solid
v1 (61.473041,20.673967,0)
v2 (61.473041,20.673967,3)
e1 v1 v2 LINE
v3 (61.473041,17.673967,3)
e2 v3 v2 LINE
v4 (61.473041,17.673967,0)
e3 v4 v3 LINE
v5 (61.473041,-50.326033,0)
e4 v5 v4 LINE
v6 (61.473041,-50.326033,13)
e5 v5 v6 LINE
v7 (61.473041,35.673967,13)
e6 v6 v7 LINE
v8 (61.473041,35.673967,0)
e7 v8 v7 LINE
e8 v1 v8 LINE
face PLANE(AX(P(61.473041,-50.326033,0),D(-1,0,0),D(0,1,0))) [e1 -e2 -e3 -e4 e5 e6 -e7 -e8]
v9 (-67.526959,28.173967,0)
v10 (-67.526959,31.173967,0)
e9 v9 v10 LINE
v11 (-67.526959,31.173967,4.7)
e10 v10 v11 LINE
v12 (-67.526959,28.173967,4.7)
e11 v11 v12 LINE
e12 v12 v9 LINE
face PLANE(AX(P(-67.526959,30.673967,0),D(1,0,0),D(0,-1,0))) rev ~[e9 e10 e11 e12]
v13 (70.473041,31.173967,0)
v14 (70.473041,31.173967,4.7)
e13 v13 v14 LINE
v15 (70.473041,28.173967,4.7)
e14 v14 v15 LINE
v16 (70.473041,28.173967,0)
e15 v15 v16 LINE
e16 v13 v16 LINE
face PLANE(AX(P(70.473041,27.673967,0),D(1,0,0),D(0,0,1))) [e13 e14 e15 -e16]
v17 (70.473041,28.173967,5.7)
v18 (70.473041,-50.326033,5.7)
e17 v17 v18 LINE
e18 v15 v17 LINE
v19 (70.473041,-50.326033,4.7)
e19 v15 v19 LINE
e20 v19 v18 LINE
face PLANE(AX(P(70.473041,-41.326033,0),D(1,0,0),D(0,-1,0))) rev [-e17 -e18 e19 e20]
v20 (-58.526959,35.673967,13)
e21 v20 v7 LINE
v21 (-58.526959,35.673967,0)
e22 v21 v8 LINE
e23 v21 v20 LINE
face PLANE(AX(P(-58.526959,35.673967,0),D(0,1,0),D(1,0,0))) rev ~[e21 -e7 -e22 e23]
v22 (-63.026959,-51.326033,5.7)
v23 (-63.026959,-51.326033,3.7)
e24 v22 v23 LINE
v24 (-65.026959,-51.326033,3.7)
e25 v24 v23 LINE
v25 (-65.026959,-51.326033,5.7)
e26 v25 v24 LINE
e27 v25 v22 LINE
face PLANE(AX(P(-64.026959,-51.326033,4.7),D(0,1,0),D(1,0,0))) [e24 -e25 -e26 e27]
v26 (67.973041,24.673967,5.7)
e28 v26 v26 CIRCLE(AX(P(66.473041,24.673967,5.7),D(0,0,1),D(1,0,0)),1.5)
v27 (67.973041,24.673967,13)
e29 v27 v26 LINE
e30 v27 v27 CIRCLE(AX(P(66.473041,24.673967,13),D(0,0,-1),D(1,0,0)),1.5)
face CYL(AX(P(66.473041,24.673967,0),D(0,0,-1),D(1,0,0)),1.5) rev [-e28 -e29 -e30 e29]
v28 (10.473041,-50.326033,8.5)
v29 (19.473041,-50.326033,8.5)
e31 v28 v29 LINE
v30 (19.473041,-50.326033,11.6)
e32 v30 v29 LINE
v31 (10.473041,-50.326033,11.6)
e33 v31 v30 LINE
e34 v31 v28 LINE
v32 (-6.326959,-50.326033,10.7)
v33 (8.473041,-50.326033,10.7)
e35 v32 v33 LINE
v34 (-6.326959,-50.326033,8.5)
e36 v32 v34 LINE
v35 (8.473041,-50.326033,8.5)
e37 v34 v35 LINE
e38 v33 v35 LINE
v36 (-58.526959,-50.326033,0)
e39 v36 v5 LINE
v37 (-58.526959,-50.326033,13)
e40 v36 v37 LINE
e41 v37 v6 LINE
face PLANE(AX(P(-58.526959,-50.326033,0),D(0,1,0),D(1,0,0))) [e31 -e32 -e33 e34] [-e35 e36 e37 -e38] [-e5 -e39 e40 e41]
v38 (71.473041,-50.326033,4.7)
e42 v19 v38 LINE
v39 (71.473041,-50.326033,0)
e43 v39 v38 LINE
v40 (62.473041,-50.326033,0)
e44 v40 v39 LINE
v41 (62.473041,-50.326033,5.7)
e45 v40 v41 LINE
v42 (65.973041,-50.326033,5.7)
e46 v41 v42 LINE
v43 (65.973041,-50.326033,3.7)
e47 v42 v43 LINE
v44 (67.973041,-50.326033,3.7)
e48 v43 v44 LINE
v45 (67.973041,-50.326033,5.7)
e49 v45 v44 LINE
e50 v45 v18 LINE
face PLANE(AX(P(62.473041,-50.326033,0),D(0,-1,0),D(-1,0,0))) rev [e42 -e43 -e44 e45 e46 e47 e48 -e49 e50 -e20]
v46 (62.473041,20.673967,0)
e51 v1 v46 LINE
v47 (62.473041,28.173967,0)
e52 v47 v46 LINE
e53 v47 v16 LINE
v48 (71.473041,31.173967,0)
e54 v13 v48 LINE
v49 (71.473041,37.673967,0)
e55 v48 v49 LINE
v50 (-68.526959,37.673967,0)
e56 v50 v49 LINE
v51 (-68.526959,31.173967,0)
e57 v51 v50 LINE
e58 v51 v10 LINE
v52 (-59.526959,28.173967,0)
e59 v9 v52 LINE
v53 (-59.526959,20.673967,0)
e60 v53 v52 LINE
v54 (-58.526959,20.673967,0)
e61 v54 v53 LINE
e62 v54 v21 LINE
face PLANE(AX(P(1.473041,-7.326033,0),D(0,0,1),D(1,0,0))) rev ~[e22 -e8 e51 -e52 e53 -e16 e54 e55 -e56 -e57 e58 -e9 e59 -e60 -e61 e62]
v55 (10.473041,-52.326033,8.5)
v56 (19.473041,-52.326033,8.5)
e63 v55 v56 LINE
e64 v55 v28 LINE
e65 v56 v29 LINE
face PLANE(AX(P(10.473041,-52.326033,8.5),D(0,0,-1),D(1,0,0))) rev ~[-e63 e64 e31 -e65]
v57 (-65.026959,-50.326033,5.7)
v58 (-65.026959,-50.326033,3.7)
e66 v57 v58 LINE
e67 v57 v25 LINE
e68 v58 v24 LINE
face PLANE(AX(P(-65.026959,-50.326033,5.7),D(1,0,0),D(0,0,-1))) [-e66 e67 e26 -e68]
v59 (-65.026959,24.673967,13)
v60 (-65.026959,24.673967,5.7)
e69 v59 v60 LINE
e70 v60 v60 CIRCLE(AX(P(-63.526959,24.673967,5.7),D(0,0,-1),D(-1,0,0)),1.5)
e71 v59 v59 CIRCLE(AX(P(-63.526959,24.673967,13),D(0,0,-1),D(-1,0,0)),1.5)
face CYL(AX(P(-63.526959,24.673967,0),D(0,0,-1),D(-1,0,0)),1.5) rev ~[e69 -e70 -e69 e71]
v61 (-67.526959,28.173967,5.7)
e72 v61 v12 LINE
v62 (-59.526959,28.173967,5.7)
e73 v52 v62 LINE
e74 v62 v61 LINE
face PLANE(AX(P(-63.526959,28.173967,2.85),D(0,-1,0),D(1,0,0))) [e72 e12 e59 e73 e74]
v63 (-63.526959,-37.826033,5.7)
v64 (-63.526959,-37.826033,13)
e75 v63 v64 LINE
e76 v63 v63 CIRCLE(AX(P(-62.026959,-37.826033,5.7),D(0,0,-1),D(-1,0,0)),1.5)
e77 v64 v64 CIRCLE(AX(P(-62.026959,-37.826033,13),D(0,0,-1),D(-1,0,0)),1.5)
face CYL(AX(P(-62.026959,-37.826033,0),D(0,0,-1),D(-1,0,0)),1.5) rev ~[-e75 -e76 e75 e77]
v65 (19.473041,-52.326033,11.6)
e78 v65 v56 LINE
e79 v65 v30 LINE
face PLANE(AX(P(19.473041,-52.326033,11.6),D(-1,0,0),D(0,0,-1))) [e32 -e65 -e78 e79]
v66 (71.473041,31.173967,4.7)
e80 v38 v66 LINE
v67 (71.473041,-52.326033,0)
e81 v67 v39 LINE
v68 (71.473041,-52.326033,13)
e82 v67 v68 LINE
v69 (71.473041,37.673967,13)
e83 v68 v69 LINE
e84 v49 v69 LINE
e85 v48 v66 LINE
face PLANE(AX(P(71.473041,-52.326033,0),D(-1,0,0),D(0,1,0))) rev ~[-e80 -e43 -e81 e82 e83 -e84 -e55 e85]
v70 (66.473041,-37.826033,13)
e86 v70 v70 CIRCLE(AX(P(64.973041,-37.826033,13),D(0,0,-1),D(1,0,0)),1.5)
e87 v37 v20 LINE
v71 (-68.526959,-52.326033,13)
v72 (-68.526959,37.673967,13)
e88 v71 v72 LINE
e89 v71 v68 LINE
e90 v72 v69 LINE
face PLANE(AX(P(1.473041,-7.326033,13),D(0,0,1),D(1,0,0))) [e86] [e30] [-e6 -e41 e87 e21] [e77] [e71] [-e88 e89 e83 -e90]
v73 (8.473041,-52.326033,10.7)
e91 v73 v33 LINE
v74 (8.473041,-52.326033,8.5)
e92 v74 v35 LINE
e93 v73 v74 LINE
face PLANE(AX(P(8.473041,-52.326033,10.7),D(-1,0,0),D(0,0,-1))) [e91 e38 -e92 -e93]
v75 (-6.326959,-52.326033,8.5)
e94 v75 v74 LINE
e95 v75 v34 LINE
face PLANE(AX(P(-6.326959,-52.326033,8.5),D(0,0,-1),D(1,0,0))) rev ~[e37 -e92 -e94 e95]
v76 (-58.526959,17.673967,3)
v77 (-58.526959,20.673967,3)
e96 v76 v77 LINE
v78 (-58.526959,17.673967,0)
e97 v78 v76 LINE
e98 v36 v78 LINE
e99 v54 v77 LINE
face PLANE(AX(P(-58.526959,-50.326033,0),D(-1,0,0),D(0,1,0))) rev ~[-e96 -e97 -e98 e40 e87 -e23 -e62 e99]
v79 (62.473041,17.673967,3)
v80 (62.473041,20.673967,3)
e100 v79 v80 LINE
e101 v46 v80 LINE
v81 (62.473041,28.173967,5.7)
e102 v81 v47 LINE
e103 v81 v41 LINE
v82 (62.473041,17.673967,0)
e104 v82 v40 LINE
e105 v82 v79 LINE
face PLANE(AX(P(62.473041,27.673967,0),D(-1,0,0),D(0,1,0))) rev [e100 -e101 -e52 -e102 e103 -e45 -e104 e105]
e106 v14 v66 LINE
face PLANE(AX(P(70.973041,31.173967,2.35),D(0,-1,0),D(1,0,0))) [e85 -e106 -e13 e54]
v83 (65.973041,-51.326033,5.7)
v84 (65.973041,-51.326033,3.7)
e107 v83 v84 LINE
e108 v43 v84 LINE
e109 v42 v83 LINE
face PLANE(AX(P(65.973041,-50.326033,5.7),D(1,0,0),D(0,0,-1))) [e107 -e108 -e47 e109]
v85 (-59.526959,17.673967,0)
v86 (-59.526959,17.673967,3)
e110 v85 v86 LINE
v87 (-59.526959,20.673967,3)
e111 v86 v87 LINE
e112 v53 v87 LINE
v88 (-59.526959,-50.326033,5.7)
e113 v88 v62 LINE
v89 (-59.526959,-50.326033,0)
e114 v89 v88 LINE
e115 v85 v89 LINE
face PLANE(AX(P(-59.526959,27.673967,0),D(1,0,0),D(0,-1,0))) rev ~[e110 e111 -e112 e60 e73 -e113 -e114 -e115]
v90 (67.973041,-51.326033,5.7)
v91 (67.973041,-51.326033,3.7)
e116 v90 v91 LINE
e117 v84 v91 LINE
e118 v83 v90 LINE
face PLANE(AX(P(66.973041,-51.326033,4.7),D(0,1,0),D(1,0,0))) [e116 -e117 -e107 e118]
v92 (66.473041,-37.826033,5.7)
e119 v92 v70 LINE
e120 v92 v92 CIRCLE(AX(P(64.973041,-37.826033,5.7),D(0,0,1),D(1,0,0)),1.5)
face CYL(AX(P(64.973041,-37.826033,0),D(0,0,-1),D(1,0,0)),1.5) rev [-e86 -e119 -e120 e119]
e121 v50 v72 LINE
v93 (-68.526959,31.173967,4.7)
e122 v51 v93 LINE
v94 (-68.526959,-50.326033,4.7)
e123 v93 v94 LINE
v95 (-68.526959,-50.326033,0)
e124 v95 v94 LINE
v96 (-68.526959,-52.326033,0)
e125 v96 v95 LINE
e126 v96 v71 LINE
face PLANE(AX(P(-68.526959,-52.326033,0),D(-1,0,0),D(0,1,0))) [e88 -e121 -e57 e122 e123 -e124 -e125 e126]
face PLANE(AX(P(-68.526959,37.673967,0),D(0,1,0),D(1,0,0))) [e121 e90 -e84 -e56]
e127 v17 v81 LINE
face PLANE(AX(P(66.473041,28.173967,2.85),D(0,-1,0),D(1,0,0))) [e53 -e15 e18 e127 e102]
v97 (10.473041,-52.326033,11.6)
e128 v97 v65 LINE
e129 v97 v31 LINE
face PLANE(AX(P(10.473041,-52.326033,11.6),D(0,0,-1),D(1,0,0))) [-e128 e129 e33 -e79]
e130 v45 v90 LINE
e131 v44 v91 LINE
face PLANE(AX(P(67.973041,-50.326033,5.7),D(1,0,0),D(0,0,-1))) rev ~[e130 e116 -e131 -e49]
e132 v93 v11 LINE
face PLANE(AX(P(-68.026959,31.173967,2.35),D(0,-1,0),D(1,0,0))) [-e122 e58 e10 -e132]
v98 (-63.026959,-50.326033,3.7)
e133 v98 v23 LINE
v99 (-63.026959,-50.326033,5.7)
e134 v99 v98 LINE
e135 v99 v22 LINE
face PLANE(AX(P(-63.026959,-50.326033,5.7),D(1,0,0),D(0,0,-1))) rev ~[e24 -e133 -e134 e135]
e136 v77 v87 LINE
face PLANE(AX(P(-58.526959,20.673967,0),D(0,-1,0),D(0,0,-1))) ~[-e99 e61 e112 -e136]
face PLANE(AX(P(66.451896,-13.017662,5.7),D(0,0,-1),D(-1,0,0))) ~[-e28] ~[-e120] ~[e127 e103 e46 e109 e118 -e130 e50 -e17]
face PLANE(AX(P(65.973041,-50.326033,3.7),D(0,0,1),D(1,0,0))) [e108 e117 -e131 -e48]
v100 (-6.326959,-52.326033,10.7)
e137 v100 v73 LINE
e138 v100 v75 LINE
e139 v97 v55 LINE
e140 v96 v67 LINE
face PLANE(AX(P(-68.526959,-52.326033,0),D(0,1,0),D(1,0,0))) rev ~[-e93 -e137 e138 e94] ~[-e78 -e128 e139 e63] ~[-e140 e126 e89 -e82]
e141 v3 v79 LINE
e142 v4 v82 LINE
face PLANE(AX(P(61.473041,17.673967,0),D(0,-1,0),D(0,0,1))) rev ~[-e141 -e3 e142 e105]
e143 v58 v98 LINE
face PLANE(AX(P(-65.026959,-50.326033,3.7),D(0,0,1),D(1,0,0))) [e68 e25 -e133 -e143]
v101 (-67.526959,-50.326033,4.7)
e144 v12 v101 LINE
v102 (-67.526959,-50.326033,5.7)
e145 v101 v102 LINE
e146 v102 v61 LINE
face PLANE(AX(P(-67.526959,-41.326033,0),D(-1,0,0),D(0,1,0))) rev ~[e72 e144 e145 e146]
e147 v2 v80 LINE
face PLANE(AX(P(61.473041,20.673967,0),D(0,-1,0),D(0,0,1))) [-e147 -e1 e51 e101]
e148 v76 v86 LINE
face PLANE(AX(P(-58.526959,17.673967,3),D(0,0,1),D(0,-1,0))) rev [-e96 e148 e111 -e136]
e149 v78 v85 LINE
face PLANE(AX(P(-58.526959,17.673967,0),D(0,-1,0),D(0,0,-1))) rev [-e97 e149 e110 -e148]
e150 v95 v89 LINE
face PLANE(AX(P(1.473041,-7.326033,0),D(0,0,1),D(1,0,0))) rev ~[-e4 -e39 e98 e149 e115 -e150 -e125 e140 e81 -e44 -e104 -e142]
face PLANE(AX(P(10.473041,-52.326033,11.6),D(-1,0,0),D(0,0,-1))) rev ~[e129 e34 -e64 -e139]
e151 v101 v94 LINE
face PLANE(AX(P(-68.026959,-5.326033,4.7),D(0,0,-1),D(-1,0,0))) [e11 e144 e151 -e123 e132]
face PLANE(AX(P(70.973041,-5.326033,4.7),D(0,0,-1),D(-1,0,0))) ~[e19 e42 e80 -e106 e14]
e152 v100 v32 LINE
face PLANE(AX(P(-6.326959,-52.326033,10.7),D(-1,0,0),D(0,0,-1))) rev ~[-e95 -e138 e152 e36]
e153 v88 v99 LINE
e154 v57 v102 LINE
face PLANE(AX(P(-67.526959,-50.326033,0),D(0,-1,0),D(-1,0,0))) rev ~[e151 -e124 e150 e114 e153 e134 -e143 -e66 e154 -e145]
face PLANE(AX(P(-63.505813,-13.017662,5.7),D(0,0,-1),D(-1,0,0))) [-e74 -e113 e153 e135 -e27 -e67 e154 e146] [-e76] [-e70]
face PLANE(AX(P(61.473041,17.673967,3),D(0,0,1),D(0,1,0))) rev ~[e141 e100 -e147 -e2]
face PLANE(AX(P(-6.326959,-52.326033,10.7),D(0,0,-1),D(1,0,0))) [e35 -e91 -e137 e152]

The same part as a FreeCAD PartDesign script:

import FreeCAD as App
import Part
import Sketcher


def add_polygon(sketch, points):
    """Adds a closed chain of lines whose ends are joined by coincident constraints."""
    first, n = sketch.GeometryCount, len(points)
    for a, b in zip(points, points[1:] + points[:1]):
        sketch.addGeometry(Part.LineSegment(App.Vector(*a, 0), App.Vector(*b, 0)), False)
    for i in range(n):
        sketch.addConstraint(Sketcher.Constraint("Coincident", first + i, 2, first + (i + 1) % n, 1))

doc = App.newDocument("Part")
body = doc.addObject("PartDesign::Body", "Body")

# Sketch on XY plane
sketch1 = doc.addObject("Sketcher::SketchObject", "Sketch")
body.addObject(sketch1)
sketch1.AttachmentSupport = (doc.XY_Plane, [""])
sketch1.MapMode = "FlatFace"
add_polygon(sketch1, [(-68.526959, 37.673967), (-68.526959, -52.326033), (71.473041, -52.326033), (71.473041, 37.673967)])  # lines 0-3
add_polygon(sketch1, [(61.473041, -50.326033), (-58.526959, -50.326033), (-58.526959, 35.673967), (61.473041, 35.673967)])  # lines 4-7
sketch1.addConstraint([
    Sketcher.Constraint("Vertical", 0),
    Sketcher.Constraint("Horizontal", 1),
    Sketcher.Constraint("Vertical", 2),
    Sketcher.Constraint("Horizontal", 3),
    Sketcher.Constraint("Horizontal", 4),
    Sketcher.Constraint("Vertical", 5),
    Sketcher.Constraint("Horizontal", 6),
    Sketcher.Constraint("Vertical", 7),
    Sketcher.Constraint("DistanceX", 1, 1, 1, 2, 140.0),
    Sketcher.Constraint("DistanceX", 4, 2, 4, 1, 120.0),
    Sketcher.Constraint("DistanceY", 0, 2, 0, 1, 90.0),
    Sketcher.Constraint("DistanceY", 5, 1, 5, 2, 86.0),
    Sketcher.Constraint("DistanceX", 0, 2, 4, 2, 10.0),
    Sketcher.Constraint("DistanceY", 0, 2, 4, 2, 2.0),
    Sketcher.Constraint("DistanceX", 0, 2, -1, 1, 68.526959),
    Sketcher.Constraint("DistanceY", 0, 2, -1, 1, 52.326033),
])
pad1 = doc.addObject("PartDesign::Pad", "Pad")
body.addObject(pad1)
pad1.Profile = sketch1
pad1.Length = 13

# Sketch on XY plane
sketch2 = doc.addObject("Sketcher::SketchObject", "Sketch001")
body.addObject(sketch2)
sketch2.AttachmentSupport = (doc.XY_Plane, [""])
sketch2.MapMode = "FlatFace"
add_polygon(sketch2, [(-59.526959, 27.673967), (-59.526959, -50.326033), (-67.526959, -50.326033), (-67.526959, 27.673967)])  # lines 0-3
sketch2.addGeometry(Part.Circle(App.Vector(-62.026959, -37.826033, 0), App.Vector(0, 0, 1), 1.5), False)  # 4
sketch2.addGeometry(Part.Circle(App.Vector(-63.526959, 24.673967, 0), App.Vector(0, 0, 1), 1.5), False)  # 5
sketch2.addConstraint([
    Sketcher.Constraint("Vertical", 0),
    Sketcher.Constraint("Horizontal", 1),
    Sketcher.Constraint("Vertical", 2),
    Sketcher.Constraint("Horizontal", 3),
    Sketcher.Constraint("Equal", 4, 5),
    Sketcher.Constraint("Diameter", 4, 3.0),
    Sketcher.Constraint("DistanceX", 1, 2, 1, 1, 8.0),
    Sketcher.Constraint("DistanceY", 0, 2, 0, 1, 78.0),
    Sketcher.Constraint("DistanceX", 5, 3, 0, 2, 4.0),
    Sketcher.Constraint("DistanceY", 0, 2, 5, 3, 75.0),
    Sketcher.Constraint("DistanceX", 5, 3, 4, 3, 1.5),
    Sketcher.Constraint("DistanceY", 4, 3, 5, 3, 62.5),
    Sketcher.Constraint("DistanceX", 4, 3, -1, 1, 62.026959),
    Sketcher.Constraint("DistanceY", 4, 3, -1, 1, 37.826033),
])
pocket1 = doc.addObject("PartDesign::Pocket", "Pocket")
body.addObject(pocket1)
pocket1.Profile = sketch2
pocket1.Length = 5.7
pocket1.Reversed = True

# Sketch on XY plane
sketch3 = doc.addObject("Sketcher::SketchObject", "Sketch002")
body.addObject(sketch3)
sketch3.AttachmentSupport = (doc.XY_Plane, [""])
sketch3.MapMode = "FlatFace"
add_polygon(sketch3, [(-67.526959, 30.673967), (-67.526959, -50.326033), (-68.526959, -50.326033), (-68.526959, 30.673967)])  # lines 0-3
sketch3.addConstraint([
    Sketcher.Constraint("Vertical", 0),
    Sketcher.Constraint("Horizontal", 1),
    Sketcher.Constraint("Vertical", 2),
    Sketcher.Constraint("Horizontal", 3),
    Sketcher.Constraint("DistanceX", 1, 2, 1, 1, 1.0),
    Sketcher.Constraint("DistanceY", 0, 2, 0, 1, 81.0),
    Sketcher.Constraint("DistanceX", 0, 2, -1, 1, 67.526959),
    Sketcher.Constraint("DistanceY", 0, 2, -1, 1, 50.326033),
])
pocket2 = doc.addObject("PartDesign::Pocket", "Pocket001")
body.addObject(pocket2)
pocket2.Profile = sketch3
pocket2.Length = 4.7
pocket2.Reversed = True

# Sketch on XY plane
sketch4 = doc.addObject("Sketcher::SketchObject", "Sketch003")
body.addObject(sketch4)
sketch4.AttachmentSupport = (doc.XY_Plane, [""])
sketch4.MapMode = "FlatFace"
sketch4.addGeometry([
    Part.Circle(App.Vector(-62.026959, -37.826033, 0), App.Vector(0, 0, 1), 1.5),
    Part.Circle(App.Vector(-63.526959, 24.673967, 0), App.Vector(0, 0, 1), 1.5),
], False)
sketch4.addConstraint([
    Sketcher.Constraint("Equal", 0, 1),
    Sketcher.Constraint("Diameter", 0, 3.0),
    Sketcher.Constraint("DistanceX", 1, 3, 0, 3, 1.5),
    Sketcher.Constraint("DistanceY", 0, 3, 1, 3, 62.5),
    Sketcher.Constraint("DistanceX", 0, 3, -1, 1, 62.026959),
    Sketcher.Constraint("DistanceY", 0, 3, -1, 1, 37.826033),
])
pocket3 = doc.addObject("PartDesign::Pocket", "Pocket002")
body.addObject(pocket3)
pocket3.Profile = sketch4
pocket3.Length = 181.057637
pocket3.Midplane = True

# Sketch on YZ plane
sketch5 = doc.addObject("Sketcher::SketchObject", "Sketch004")
body.addObject(sketch5)
sketch5.AttachmentSupport = (doc.YZ_Plane, [""])
sketch5.MapMode = "FlatFace"
sketch5.AttachmentOffset = App.Placement(App.Vector(0, 0, 61.473041), App.Rotation())
add_polygon(sketch5, [(20.673967, 0), (17.673967, 0), (17.673967, 3), (20.673967, 3)])  # lines 0-3
sketch5.addConstraint([
    Sketcher.Constraint("Horizontal", 0),
    Sketcher.Constraint("Vertical", 1),
    Sketcher.Constraint("Horizontal", 2),
    Sketcher.Constraint("Vertical", 3),
    Sketcher.Constraint("PointOnObject", 0, 2, -1),
    Sketcher.Constraint("Equal", 2, 1),
    Sketcher.Constraint("DistanceX", 0, 2, 0, 1, 3.0),
    Sketcher.Constraint("DistanceX", -1, 1, 0, 2, 17.673967),
])
pocket4 = doc.addObject("PartDesign::Pocket", "Pocket003")
body.addObject(pocket4)
pocket4.Profile = sketch5
pocket4.Length = 10
pocket4.Reversed = True
doc.recompute()

datumplane = doc.addObject("PartDesign::Plane", "DatumPlane")
body.addObject(datumplane)
datumplane.AttachmentSupport = (doc.YZ_Plane, [""])
datumplane.MapMode = "FlatFace"
datumplane.AttachmentOffset = App.Placement(App.Vector(0, 0, 1.473041), App.Rotation())
mirrored = doc.addObject("PartDesign::Mirrored", "Mirrored")
body.addObject(mirrored)
mirrored.Originals = [pocket1, pocket2, pocket3, pocket4]
mirrored.MirrorPlane = (datumplane, [""])
body.Tip = mirrored

# Sketch on XZ plane
sketch6 = doc.addObject("Sketcher::SketchObject", "Sketch005")
body.addObject(sketch6)
sketch6.AttachmentSupport = (doc.XZ_Plane, [""])
sketch6.MapMode = "FlatFace"
sketch6.AttachmentOffset = App.Placement(App.Vector(0, 0, -27.673967), App.Rotation())
add_polygon(sketch6, [(-59.526959, 0), (-59.526959, 5.7), (-67.526959, 5.7), (-67.526959, 4.7), (-68.526959, 4.7), (-68.526959, 0)])  # lines 0-5
add_polygon(sketch6, [(70.473041, 5.7), (62.473041, 5.7), (62.473041, 0), (71.473041, 0), (71.473041, 4.7), (70.473041, 4.7)])  # lines 6-11
sketch6.addConstraint([
    Sketcher.Constraint("Vertical", 0),
    Sketcher.Constraint("Horizontal", 1),
    Sketcher.Constraint("Vertical", 2),
    Sketcher.Constraint("Horizontal", 3),
    Sketcher.Constraint("Vertical", 4),
    Sketcher.Constraint("Horizontal", 5),
    Sketcher.Constraint("Horizontal", 6),
    Sketcher.Constraint("Vertical", 7),
    Sketcher.Constraint("Horizontal", 8),
    Sketcher.Constraint("Vertical", 9),
    Sketcher.Constraint("Horizontal", 10),
    Sketcher.Constraint("Vertical", 11),
    Sketcher.Constraint("PointOnObject", 4, 2, -1),
    Sketcher.Constraint("PointOnObject", 7, 2, -1),
    Sketcher.Constraint("Horizontal", 1, 2, 6, 2),
    Sketcher.Constraint("Horizontal", 3, 2, 9, 2),
    Sketcher.Constraint("Equal", 1, 6),
    Sketcher.Constraint("Equal", 5, 8),
    Sketcher.Constraint("Equal", 10, 2),
    Sketcher.Constraint("DistanceX", 1, 2, 1, 1, 8.0),
    Sketcher.Constraint("DistanceX", 3, 2, 3, 1, 1.0),
    Sketcher.Constraint("DistanceY", 0, 1, 0, 2, 5.7),
    Sketcher.Constraint("DistanceX", 0, 2, 6, 2, 122.0),
    Sketcher.Constraint("DistanceX", 0, 2, -1, 1, 59.526959),
])
pocket5 = doc.addObject("PartDesign::Pocket", "Pocket004")
body.addObject(pocket5)
pocket5.Profile = sketch6
pocket5.Length = 0.5

# Sketch on XZ plane
sketch7 = doc.addObject("Sketcher::SketchObject", "Sketch006")
body.addObject(sketch7)
sketch7.AttachmentSupport = (doc.XZ_Plane, [""])
sketch7.MapMode = "FlatFace"
sketch7.AttachmentOffset = App.Placement(App.Vector(0, 0, -27.673967), App.Rotation())
add_polygon(sketch7, [(-68.526959, 4.7), (-68.526959, 0), (-67.526959, 0), (-67.526959, 4.7)])  # lines 0-3
add_polygon(sketch7, [(70.473041, 4.7), (70.473041, 0), (71.473041, 0), (71.473041, 4.7)])  # lines 4-7
sketch7.addConstraint([
    Sketcher.Constraint("Vertical", 0),
    Sketcher.Constraint("Horizontal", 1),
    Sketcher.Constraint("Vertical", 2),
    Sketcher.Constraint("Horizontal", 3),
    Sketcher.Constraint("Vertical", 4),
    Sketcher.Constraint("Horizontal", 5),
    Sketcher.Constraint("Vertical", 6),
    Sketcher.Constraint("Horizontal", 7),
    Sketcher.Constraint("PointOnObject", 0, 2, -1),
    Sketcher.Constraint("PointOnObject", 4, 2, -1),
    Sketcher.Constraint("Horizontal", 3, 2, 6, 2),
    Sketcher.Constraint("Equal", 3, 5),
    Sketcher.Constraint("DistanceX", 1, 1, 1, 2, 1.0),
    Sketcher.Constraint("DistanceY", 0, 2, 0, 1, 4.7),
    Sketcher.Constraint("DistanceX", 1, 2, 4, 2, 138.0),
    Sketcher.Constraint("DistanceX", 0, 2, -1, 1, 68.526959),
])
pocket6 = doc.addObject("PartDesign::Pocket", "Pocket005")
body.addObject(pocket6)
pocket6.Profile = sketch7
pocket6.Length = 3.5

# Sketch on XZ plane
sketch8 = doc.addObject("Sketcher::SketchObject", "Sketch007")
body.addObject(sketch8)
sketch8.AttachmentSupport = (doc.XZ_Plane, [""])
sketch8.MapMode = "FlatFace"
sketch8.AttachmentOffset = App.Placement(App.Vector(0, 0, 50.326033), App.Rotation())
add_polygon(sketch8, [(-65.026959, 3.7), (-65.026959, 5.7), (-63.026959, 5.7), (-63.026959, 3.7)])  # lines 0-3
add_polygon(sketch8, [(65.973041, 3.7), (65.973041, 5.7), (67.973041, 5.7), (67.973041, 3.7)])  # lines 4-7
sketch8.addConstraint([
    Sketcher.Constraint("Vertical", 0),
    Sketcher.Constraint("Horizontal", 1),
    Sketcher.Constraint("Vertical", 2),
    Sketcher.Constraint("Horizontal", 3),
    Sketcher.Constraint("Vertical", 4),
    Sketcher.Constraint("Horizontal", 5),
    Sketcher.Constraint("Vertical", 6),
    Sketcher.Constraint("Horizontal", 7),
    Sketcher.Constraint("Horizontal", 1, 2, 4, 2),
    Sketcher.Constraint("Horizontal", 3, 2, 6, 2),
    Sketcher.Constraint("Equal", 3, 5),
    Sketcher.Constraint("Equal", 7, 0),
    Sketcher.Constraint("DistanceX", 1, 1, 1, 2, 2.0),
    Sketcher.Constraint("DistanceX", 1, 2, 4, 2, 129.0),
    Sketcher.Constraint("DistanceY", -1, 1, 0, 2, 5.7),
    Sketcher.Constraint("DistanceX", 0, 2, -1, 1, 65.026959),
])
pocket7 = doc.addObject("PartDesign::Pocket", "Pocket006")
body.addObject(pocket7)
pocket7.Profile = sketch8
pocket7.Length = 1
pocket7.Reversed = True

# Sketch on XZ plane
sketch9 = doc.addObject("Sketcher::SketchObject", "Sketch008")
body.addObject(sketch9)
sketch9.AttachmentSupport = (doc.XZ_Plane, [""])
sketch9.MapMode = "FlatFace"
sketch9.AttachmentOffset = App.Placement(App.Vector(0, 0, 52.326033), App.Rotation())
add_polygon(sketch9, [(-6.326959, 8.5), (-6.326959, 10.7), (8.473041, 10.7), (8.473041, 8.5)])  # lines 0-3
add_polygon(sketch9, [(10.473041, 8.5), (10.473041, 11.6), (19.473041, 11.6), (19.473041, 8.5)])  # lines 4-7
sketch9.addConstraint([
    Sketcher.Constraint("Vertical", 0),
    Sketcher.Constraint("Horizontal", 1),
    Sketcher.Constraint("Vertical", 2),
    Sketcher.Constraint("Horizontal", 3),
    Sketcher.Constraint("Vertical", 4),
    Sketcher.Constraint("Horizontal", 5),
    Sketcher.Constraint("Vertical", 6),
    Sketcher.Constraint("Horizontal", 7),
    Sketcher.Constraint("Horizontal", 3, 2, 6, 2),
    Sketcher.Constraint("DistanceX", 5, 1, 5, 2, 9.0),
    Sketcher.Constraint("DistanceX", 1, 1, 1, 2, 14.8),
    Sketcher.Constraint("DistanceY", 0, 1, 0, 2, 2.2),
    Sketcher.Constraint("DistanceY", 4, 1, 4, 2, 3.1),
    Sketcher.Constraint("DistanceX", 1, 2, 4, 2, 2.0),
    Sketcher.Constraint("DistanceY", -1, 1, 0, 2, 10.7),
    Sketcher.Constraint("DistanceX", 0, 2, -1, 1, 6.326959),
])
pocket8 = doc.addObject("PartDesign::Pocket", "Pocket007")
body.addObject(pocket8)
pocket8.Profile = sketch9
pocket8.Length = 2

doc.recompute()
